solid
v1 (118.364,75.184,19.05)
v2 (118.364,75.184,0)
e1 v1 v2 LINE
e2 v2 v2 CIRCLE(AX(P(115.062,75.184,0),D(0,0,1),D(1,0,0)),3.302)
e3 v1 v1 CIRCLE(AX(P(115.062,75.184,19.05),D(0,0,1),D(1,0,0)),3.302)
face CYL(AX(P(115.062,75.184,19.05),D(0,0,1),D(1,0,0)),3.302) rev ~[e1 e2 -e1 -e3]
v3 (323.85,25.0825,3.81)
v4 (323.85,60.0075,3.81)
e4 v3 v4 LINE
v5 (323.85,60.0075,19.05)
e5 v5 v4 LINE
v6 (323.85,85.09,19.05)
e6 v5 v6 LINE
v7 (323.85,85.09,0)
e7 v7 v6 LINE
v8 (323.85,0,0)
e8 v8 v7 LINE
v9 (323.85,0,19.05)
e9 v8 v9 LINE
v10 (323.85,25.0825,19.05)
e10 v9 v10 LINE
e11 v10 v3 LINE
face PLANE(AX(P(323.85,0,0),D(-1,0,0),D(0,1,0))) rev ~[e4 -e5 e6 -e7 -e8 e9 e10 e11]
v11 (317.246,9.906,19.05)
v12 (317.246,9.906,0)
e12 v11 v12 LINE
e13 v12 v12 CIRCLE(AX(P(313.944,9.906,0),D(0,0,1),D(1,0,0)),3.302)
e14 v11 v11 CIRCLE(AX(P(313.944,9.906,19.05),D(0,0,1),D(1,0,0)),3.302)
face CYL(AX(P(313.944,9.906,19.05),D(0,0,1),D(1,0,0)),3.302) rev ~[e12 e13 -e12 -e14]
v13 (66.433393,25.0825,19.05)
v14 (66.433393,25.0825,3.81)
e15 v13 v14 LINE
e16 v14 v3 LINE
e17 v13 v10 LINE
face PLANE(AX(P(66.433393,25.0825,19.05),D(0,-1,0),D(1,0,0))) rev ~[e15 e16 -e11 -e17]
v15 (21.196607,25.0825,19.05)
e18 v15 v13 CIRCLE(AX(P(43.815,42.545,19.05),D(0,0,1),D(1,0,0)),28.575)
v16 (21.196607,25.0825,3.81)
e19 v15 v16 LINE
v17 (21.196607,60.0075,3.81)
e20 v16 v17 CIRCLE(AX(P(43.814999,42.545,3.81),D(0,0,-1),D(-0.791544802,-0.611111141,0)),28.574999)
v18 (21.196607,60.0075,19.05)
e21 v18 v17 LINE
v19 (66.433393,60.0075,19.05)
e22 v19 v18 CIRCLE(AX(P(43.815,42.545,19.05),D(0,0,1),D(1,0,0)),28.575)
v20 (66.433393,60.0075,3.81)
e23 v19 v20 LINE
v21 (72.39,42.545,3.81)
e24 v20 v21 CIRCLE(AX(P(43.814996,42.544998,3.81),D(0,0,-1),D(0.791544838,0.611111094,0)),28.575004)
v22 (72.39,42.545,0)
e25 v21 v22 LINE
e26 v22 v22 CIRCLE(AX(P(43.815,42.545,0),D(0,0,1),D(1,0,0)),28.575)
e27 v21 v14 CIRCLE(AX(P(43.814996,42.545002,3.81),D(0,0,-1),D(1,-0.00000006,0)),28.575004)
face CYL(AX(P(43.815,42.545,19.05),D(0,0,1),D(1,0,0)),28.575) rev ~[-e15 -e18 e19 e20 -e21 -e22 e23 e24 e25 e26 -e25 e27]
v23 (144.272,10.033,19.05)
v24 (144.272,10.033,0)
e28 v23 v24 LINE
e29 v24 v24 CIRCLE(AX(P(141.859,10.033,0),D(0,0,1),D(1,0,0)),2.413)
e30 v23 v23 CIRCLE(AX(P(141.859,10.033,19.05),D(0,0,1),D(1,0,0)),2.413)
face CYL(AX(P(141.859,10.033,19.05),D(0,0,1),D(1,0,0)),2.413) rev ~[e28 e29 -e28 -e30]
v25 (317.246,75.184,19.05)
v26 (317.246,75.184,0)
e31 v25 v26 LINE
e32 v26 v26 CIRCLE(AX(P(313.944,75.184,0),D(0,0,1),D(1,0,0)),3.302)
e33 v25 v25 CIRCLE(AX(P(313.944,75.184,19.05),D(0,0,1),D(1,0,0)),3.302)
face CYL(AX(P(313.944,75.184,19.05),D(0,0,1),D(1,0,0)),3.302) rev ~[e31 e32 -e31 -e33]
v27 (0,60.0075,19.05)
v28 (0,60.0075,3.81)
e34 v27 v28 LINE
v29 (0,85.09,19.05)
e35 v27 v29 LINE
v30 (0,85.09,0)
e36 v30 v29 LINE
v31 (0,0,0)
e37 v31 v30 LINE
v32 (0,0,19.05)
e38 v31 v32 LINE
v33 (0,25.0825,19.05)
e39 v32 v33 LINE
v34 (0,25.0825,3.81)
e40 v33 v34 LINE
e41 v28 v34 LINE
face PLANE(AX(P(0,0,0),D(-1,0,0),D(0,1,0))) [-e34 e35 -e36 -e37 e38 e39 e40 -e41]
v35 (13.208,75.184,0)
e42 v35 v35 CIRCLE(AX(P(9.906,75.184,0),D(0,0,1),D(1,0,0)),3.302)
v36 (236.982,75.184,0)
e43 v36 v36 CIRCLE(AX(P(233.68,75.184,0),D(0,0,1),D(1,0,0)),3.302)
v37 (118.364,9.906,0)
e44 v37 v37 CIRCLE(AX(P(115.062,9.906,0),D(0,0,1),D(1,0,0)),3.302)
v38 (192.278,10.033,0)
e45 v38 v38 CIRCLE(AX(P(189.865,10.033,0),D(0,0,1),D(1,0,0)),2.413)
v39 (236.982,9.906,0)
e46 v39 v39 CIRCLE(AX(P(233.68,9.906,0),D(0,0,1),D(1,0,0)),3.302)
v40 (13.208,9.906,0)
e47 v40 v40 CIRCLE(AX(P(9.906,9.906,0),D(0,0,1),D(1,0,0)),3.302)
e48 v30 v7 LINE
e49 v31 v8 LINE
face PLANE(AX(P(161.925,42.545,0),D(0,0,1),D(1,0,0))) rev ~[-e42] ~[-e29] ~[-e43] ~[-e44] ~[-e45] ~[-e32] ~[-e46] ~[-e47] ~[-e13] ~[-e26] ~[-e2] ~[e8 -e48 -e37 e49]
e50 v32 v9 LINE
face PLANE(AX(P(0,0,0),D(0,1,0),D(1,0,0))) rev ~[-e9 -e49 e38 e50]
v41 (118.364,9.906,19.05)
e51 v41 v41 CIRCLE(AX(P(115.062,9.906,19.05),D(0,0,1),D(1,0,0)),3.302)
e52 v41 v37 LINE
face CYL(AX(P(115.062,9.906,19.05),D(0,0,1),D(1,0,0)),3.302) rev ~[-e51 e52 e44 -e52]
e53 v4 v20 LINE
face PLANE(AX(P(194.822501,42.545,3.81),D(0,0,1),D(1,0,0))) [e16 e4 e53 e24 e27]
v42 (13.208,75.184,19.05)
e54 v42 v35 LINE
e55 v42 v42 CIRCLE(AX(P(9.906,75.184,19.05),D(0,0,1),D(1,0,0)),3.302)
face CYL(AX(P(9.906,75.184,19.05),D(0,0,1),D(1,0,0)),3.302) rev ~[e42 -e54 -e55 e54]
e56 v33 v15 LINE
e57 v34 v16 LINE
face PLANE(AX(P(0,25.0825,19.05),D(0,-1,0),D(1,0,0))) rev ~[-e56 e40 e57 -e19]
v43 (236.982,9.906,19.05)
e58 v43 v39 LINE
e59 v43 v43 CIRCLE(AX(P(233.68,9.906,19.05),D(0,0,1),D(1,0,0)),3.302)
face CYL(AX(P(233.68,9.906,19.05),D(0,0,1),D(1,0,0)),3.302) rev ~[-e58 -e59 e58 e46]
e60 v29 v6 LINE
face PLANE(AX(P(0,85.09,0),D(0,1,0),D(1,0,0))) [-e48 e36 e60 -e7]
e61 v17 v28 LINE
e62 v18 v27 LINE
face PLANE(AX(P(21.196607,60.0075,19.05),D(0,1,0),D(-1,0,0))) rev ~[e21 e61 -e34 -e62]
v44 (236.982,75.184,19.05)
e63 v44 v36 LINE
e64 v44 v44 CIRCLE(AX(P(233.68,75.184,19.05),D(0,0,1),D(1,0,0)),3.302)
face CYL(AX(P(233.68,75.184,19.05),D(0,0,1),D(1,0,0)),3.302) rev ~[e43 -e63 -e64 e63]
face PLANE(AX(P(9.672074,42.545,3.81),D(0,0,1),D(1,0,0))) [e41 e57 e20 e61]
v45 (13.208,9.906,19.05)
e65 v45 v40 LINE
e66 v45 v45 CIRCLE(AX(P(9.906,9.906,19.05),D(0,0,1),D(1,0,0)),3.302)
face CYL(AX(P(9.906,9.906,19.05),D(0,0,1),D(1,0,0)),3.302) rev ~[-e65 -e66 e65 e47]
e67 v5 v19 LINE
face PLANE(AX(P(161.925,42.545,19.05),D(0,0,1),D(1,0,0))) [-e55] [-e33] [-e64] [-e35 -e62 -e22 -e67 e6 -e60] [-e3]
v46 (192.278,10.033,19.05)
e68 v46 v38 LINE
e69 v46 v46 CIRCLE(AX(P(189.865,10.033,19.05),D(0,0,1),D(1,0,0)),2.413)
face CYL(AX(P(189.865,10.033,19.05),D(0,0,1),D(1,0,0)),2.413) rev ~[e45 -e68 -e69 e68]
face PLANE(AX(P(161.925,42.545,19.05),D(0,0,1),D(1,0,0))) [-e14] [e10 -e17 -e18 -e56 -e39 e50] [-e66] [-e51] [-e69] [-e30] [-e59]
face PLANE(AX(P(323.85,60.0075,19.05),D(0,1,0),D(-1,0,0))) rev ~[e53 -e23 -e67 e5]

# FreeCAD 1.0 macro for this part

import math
import FreeCAD as App
import Part
import Sketcher
Q = App.Units.Quantity


def add_polygon(sketch, points):
    """Adds a closed chain of lines whose ends are joined by coincident constraints."""
    first, n = sketch.GeometryCount, len(points)
    for a, b in zip(points, points[1:] + points[:1]):
        sketch.addGeometry(Part.LineSegment(App.Vector(*a, 0), App.Vector(*b, 0)), False)
    for i in range(n):
        sketch.addConstraint(Sketcher.Constraint("Coincident", first + i, 2, first + (i + 1) % n, 1))

doc = App.newDocument("Part")
body = doc.addObject("PartDesign::Body", "Body")

sketch1 = doc.addObject("Sketcher::SketchObject", "Sketch")
body.addObject(sketch1)
sketch1.AttachmentSupport = (doc.XY_Plane, [""])
sketch1.MapMode = "FlatFace"
add_polygon(sketch1, [(0, 85.09), (0, 0), (323.85, 0), (323.85, 85.09)])
sketch1.addConstraint([
    Sketcher.Constraint("Vertical", 0),
    Sketcher.Constraint("Horizontal", 1),
    Sketcher.Constraint("Vertical", 2),
    Sketcher.Constraint("Horizontal", 3),
    Sketcher.Constraint("Coincident", 0, 2, -1, 1),
    Sketcher.Constraint("DistanceX", 1, 1, 1, 2, Q("12.75 in")),
    Sketcher.Constraint("DistanceY", 0, 2, 0, 1, Q("3.35 in")),
])
pad1 = doc.addObject("PartDesign::Pad", "Pad")
body.addObject(pad1)
pad1.Profile = sketch1
pad1.Length = Q("0.75 in")

sketch2 = doc.addObject("Sketcher::SketchObject", "Sketch001")
body.addObject(sketch2)
sketch2.AttachmentSupport = (doc.XY_Plane, [""])
sketch2.MapMode = "FlatFace"
sketch2.AttachmentOffset = App.Placement(App.Vector(0, 0, 0.75 * 25.4), App.Rotation())
sketch2.addGeometry(Part.Circle(App.Vector(43.815, 42.545, 0), App.Vector(0, 0, 1), 28.575), False)
sketch2.addConstraint([
    Sketcher.Constraint("Diameter", 0, Q("2.25 in")),
    Sketcher.Constraint("DistanceX", -1, 1, 0, 3, Q("1.725 in")),
    Sketcher.Constraint("DistanceY", -1, 1, 0, 3, Q("1.675 in")),
])
pocket1 = doc.addObject("PartDesign::Pocket", "Pocket")
body.addObject(pocket1)
pocket1.Profile = sketch2
pocket1.Type = "ThroughAll"

sketch3 = doc.addObject("Sketcher::SketchObject", "Sketch002")
body.addObject(sketch3)
sketch3.AttachmentSupport = (doc.XY_Plane, [""])
sketch3.MapMode = "FlatFace"
sketch3.AttachmentOffset = App.Placement(App.Vector(0, 0, 0.75 * 25.4), App.Rotation())
sketch3.addGeometry([
    Part.Circle(App.Vector(9.906, 75.184, 0), App.Vector(0, 0, 1), 3.302),
    Part.Circle(App.Vector(115.062, 75.184, 0), App.Vector(0, 0, 1), 3.302),
    Part.Circle(App.Vector(233.68, 75.184, 0), App.Vector(0, 0, 1), 3.302),
    Part.Circle(App.Vector(313.944, 75.184, 0), App.Vector(0, 0, 1), 3.302),
    Part.Circle(App.Vector(115.062, 9.906, 0), App.Vector(0, 0, 1), 3.302),
    Part.Circle(App.Vector(9.906, 9.906, 0), App.Vector(0, 0, 1), 3.302),
    Part.Circle(App.Vector(233.68, 9.906, 0), App.Vector(0, 0, 1), 3.302),
    Part.Circle(App.Vector(313.944, 9.906, 0), App.Vector(0, 0, 1), 3.302),
], False)
sketch3.addConstraint([
    Sketcher.Constraint("Equal", 0, 1),
    Sketcher.Constraint("Equal", 1, 2),
    Sketcher.Constraint("Equal", 2, 3),
    Sketcher.Constraint("Equal", 3, 4),
    Sketcher.Constraint("Equal", 4, 5),
    Sketcher.Constraint("Equal", 5, 6),
    Sketcher.Constraint("Equal", 6, 7),
    Sketcher.Constraint("Horizontal", 0, 3, 1, 3),
    Sketcher.Constraint("Horizontal", 1, 3, 2, 3),
    Sketcher.Constraint("Horizontal", 2, 3, 3, 3),
    Sketcher.Constraint("Horizontal", 4, 3, 5, 3),
    Sketcher.Constraint("Horizontal", 5, 3, 6, 3),
    Sketcher.Constraint("Horizontal", 6, 3, 7, 3),
    Sketcher.Constraint("Vertical", 1, 3, 4, 3),
    Sketcher.Constraint("Vertical", 0, 3, 5, 3),
    Sketcher.Constraint("Vertical", 2, 3, 6, 3),
    Sketcher.Constraint("Vertical", 3, 3, 7, 3),
    Sketcher.Constraint("Diameter", 0, Q("0.26 in")),
    Sketcher.Constraint("DistanceX", -1, 1, 2, 3, Q("9.2 in")),
    Sketcher.Constraint("DistanceX", -1, 1, 0, 3, Q("0.39 in")),
    Sketcher.Constraint("DistanceY", -1, 1, 0, 3, Q("2.96 in")),
    Sketcher.Constraint("DistanceX", -1, 1, 1, 3, Q("4.53 in")),
    Sketcher.Constraint("DistanceX", -1, 1, 3, 3, Q("12.36 in")),
    Sketcher.Constraint("DistanceY", -1, 1, 4, 3, Q("0.39 in")),
])
pocket2 = doc.addObject("PartDesign::Pocket", "Pocket001")
body.addObject(pocket2)
pocket2.Profile = sketch3
pocket2.Type = "ThroughAll"

sketch4 = doc.addObject("Sketcher::SketchObject", "Sketch003")
body.addObject(sketch4)
sketch4.AttachmentSupport = (doc.XY_Plane, [""])
sketch4.MapMode = "FlatFace"
sketch4.AttachmentOffset = App.Placement(App.Vector(0, 0, 0.75 * 25.4), App.Rotation())
sketch4.addGeometry([
    Part.Circle(App.Vector(141.859, 10.033, 0), App.Vector(0, 0, 1), 2.413),
    Part.Circle(App.Vector(189.865, 10.033, 0), App.Vector(0, 0, 1), 2.413),
], False)
sketch4.addConstraint([
    Sketcher.Constraint("Equal", 0, 1),
    Sketcher.Constraint("Horizontal", 0, 3, 1, 3),
    Sketcher.Constraint("Diameter", 0, Q("0.19 in")),
    Sketcher.Constraint("DistanceX", 0, 3, 1, 3, Q("1.89 in")),
    Sketcher.Constraint("DistanceX", -1, 1, 0, 3, Q("5.585 in")),
    Sketcher.Constraint("DistanceY", -1, 1, 0, 3, Q("0.395 in")),
])
pocket3 = doc.addObject("PartDesign::Pocket", "Pocket002")
body.addObject(pocket3)
pocket3.Profile = sketch4
pocket3.Type = "ThroughAll"

sketch5 = doc.addObject("Sketcher::SketchObject", "Sketch004")
body.addObject(sketch5)
sketch5.AttachmentSupport = (doc.XY_Plane, [""])
sketch5.MapMode = "FlatFace"
sketch5.AttachmentOffset = App.Placement(App.Vector(0, 0, 0.75 * 25.4), App.Rotation())
sketch5.addGeometry([
    Part.LineSegment(App.Vector(323.85, 60.0075, 0), App.Vector(66.433393, 60.0075, 0)),
    Part.ArcOfCircle(Part.Circle(App.Vector(43.814996, 42.544998, 0), App.Vector(0, 0, 1), 28.575004), math.radians(0.000003), math.radians(37.669886)),
    Part.ArcOfCircle(Part.Circle(App.Vector(43.814996, 42.545002, 0), App.Vector(0, 0, 1), 28.575004), math.radians(-37.669886), math.radians(-0.000003)),
    Part.LineSegment(App.Vector(66.433393, 25.0825, 0), App.Vector(323.85, 25.0825, 0)),
    Part.LineSegment(App.Vector(323.85, 25.0825, 0), App.Vector(323.85, 60.0075, 0)),
    Part.LineSegment(App.Vector(21.196607, 60.0075, 0), App.Vector(0, 60.0075, 0)),
    Part.LineSegment(App.Vector(0, 60.0075, 0), App.Vector(0, 25.0825, 0)),
    Part.LineSegment(App.Vector(0, 25.0825, 0), App.Vector(21.196607, 25.0825, 0)),
    Part.ArcOfCircle(Part.Circle(App.Vector(43.814999, 42.545, 0), App.Vector(0, 0, 1), 28.574999), math.radians(142.330111), math.radians(217.669889)),
], False)
sketch5.addConstraint([
    Sketcher.Constraint("Coincident", 0, 2, 1, 2),
    Sketcher.Constraint("Tangent", 1, 1, 2, 2),
    Sketcher.Constraint("Coincident", 2, 1, 3, 1),
    Sketcher.Constraint("Coincident", 3, 2, 4, 1),
    Sketcher.Constraint("Coincident", 4, 2, 0, 1),
    Sketcher.Constraint("Coincident", 5, 2, 6, 1),
    Sketcher.Constraint("Coincident", 6, 2, 7, 1),
    Sketcher.Constraint("Coincident", 7, 2, 8, 2),
    Sketcher.Constraint("Coincident", 8, 1, 5, 1),
    Sketcher.Constraint("Horizontal", 0),
    Sketcher.Constraint("Horizontal", 3),
    Sketcher.Constraint("Vertical", 4),
    Sketcher.Constraint("Horizontal", 5),
    Sketcher.Constraint("Vertical", 6),
    Sketcher.Constraint("Horizontal", 7),
    Sketcher.Constraint("Coincident", 8, 3, 1, 3),
    Sketcher.Constraint("Equal", 1, 2),
    Sketcher.Constraint("PointOnObject", 5, 2, -2),
    Sketcher.Constraint("Horizontal", 8, 3, 1, 1),
    Sketcher.Constraint("Horizontal", 4, 2, 5, 2),
    Sketcher.Constraint("Horizontal", 3, 2, 6, 2),
    Sketcher.Constraint("Vertical", 0, 2, 2, 1),
    Sketcher.Constraint("Radius", 1, Q("1.1250001 in")),
    Sketcher.Constraint("Radius", 8, Q("1.1249999 in")),
    Sketcher.Constraint("DistanceX", 1, 1, 3, 2, Q("9.9 in")),
    Sketcher.Constraint("DistanceY", 4, 1, 4, 2, Q("1.375 in")),
    Sketcher.Constraint("DistanceX", -1, 1, 1, 1, Q("2.85 in")),
    Sketcher.Constraint("DistanceY", -1, 1, 1, 3, Q("1.6749999 in")),
])
pocket4 = doc.addObject("PartDesign::Pocket", "Pocket003")
body.addObject(pocket4)
pocket4.Profile = sketch5
pocket4.Length = Q("0.6 in")

doc.recompute()
